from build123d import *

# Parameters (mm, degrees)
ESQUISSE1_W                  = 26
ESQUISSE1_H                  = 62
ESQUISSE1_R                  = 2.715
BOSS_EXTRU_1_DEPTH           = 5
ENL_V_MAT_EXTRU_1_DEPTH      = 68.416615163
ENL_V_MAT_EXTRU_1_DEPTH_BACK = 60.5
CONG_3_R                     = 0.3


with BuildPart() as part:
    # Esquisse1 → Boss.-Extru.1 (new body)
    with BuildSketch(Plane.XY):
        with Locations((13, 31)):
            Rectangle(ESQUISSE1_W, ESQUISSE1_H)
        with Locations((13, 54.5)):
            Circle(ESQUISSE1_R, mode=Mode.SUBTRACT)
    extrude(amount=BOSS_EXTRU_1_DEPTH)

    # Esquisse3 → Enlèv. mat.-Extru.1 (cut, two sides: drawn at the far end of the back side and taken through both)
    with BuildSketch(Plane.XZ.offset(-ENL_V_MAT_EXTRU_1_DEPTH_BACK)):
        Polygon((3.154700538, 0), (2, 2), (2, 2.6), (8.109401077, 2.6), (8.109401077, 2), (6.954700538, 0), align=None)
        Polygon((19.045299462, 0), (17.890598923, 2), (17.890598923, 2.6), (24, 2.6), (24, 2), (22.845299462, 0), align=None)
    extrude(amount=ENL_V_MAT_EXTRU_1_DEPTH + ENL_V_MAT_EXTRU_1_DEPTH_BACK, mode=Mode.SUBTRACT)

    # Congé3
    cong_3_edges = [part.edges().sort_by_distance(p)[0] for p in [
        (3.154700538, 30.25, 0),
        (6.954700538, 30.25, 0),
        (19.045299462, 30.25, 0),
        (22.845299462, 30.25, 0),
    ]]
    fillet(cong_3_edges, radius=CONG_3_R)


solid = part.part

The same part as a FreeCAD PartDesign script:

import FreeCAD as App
import Part
import Sketcher

V = App.Vector
Q = App.Units.Quantity


def edges_at(feature, points):
    """Names of the edges that pass closest to the given points."""
    edges = feature.Shape.Edges
    near = lambda p: min(range(len(edges)), key=lambda i: edges[i].distToShape(Part.Vertex(*p))[0])
    return sorted({f"Edge{near(p) + 1}" for p in points})


def add_polygon(sketch, points):
    """Adds a closed chain of lines whose ends are joined by coincident constraints."""
    first, n = sketch.GeometryCount, len(points)
    for a, b in zip(points, points[1:] + points[:1]):
        sketch.addGeometry(Part.LineSegment(App.Vector(*a, 0), App.Vector(*b, 0)), False)
    for i in range(n):
        sketch.addConstraint(Sketcher.Constraint("Coincident", first + i, 2, first + (i + 1) % n, 1))

doc = App.newDocument("Part")
params = doc.addObject("Spreadsheet::Sheet", "Params")
for row, (alias, value) in enumerate([
    ("sketch1_diameter", "5.43 mm"),
    ("sketch1_width", "26 mm"),
    ("sketch1_height", "62 mm"),
    ("pad1_length", "5 mm"),
    ("sketch2_width", "3.8 mm"),
    ("sketch2_height", "0.6 mm"),
    ("pocket1_length", "68.416615 mm"),
    ("pocket1_length2", "60.5 mm"),
    ("fillet_radius", "0.3 mm"),
], start=1):
    params.set(f"A{row}", alias)
    params.set(f"B{row}", "=" + value)
    params.setAlias(f"B{row}", alias)

body = doc.addObject("PartDesign::Body", "Body")

sketch1 = doc.addObject("Sketcher::SketchObject", "Sketch")
body.addObject(sketch1)
sketch1.AttachmentSupport = (doc.XY_Plane, [""])
sketch1.MapMode = "FlatFace"
add_polygon(sketch1, [(0, 62), (0, 0), (26, 0), (26, 62)])
sketch1.addGeometry(Part.Circle(V(13, 54.5, 0), V(0, 0, 1), 2.7), False)
sketch1.addConstraint(Sketcher.Constraint("Vertical", 0))
sketch1.addConstraint(Sketcher.Constraint("Horizontal", 1))
sketch1.addConstraint(Sketcher.Constraint("Vertical", 2))
sketch1.addConstraint(Sketcher.Constraint("Horizontal", 3))
sketch1.addConstraint(Sketcher.Constraint("Coincident", 0, 2, -1, 1))
sketch1.addConstraint(Sketcher.Constraint("Diameter", 4, Q("5.43 mm")))
sketch1.addConstraint(Sketcher.Constraint("DistanceX", 1, 1, 1, 2, Q("26 mm")))
sketch1.addConstraint(Sketcher.Constraint("DistanceY", 0, 2, 0, 1, Q("62 mm")))
sketch1.addConstraint(Sketcher.Constraint("DistanceX", -1, 1, 4, 3, Q("13 mm")))
sketch1.addConstraint(Sketcher.Constraint("DistanceY", -1, 1, 4, 3, Q("54.5 mm")))
sketch1.setExpression("Constraints[9]", "Params.sketch1_diameter")
sketch1.setExpression("Constraints[10]", "Params.sketch1_width")
sketch1.setExpression("Constraints[11]", "Params.sketch1_height")
pad1 = doc.addObject("PartDesign::Pad", "Pad")
body.addObject(pad1)
pad1.Profile = sketch1
pad1.setExpression("Length", "Params.pad1_length")

sketch2 = doc.addObject("Sketcher::SketchObject", "Sketch001")
body.addObject(sketch2)
sketch2.AttachmentSupport = (doc.XZ_Plane, [""])
sketch2.MapMode = "FlatFace"
add_polygon(sketch2, [(2, 2), (3.2, 0), (7, 0), (8.1, 2), (8.1, 2.6), (2, 2.6)])
add_polygon(sketch2, [(17.9, 2), (19, 0), (22.8, 0), (24, 2), (24, 2.6), (17.9, 2.6)])
sketch2.addConstraint(Sketcher.Constraint("Horizontal", 1))
sketch2.addConstraint(Sketcher.Constraint("Vertical", 3))
sketch2.addConstraint(Sketcher.Constraint("Horizontal", 4))
sketch2.addConstraint(Sketcher.Constraint("Vertical", 5))
sketch2.addConstraint(Sketcher.Constraint("Horizontal", 7))
sketch2.addConstraint(Sketcher.Constraint("Vertical", 9))
sketch2.addConstraint(Sketcher.Constraint("Horizontal", 10))
sketch2.addConstraint(Sketcher.Constraint("Vertical", 11))
sketch2.addConstraint(Sketcher.Constraint("PointOnObject", 0, 2, -1))
sketch2.addConstraint(Sketcher.Constraint("PointOnObject", 6, 2, -1))
sketch2.addConstraint(Sketcher.Constraint("Parallel", 0, 6))
sketch2.addConstraint(Sketcher.Constraint("Parallel", 2, 8))
sketch2.addConstraint(Sketcher.Constraint("Horizontal", 2, 2, 5, 2))
sketch2.addConstraint(Sketcher.Constraint("Horizontal", 5, 2, 8, 2))
sketch2.addConstraint(Sketcher.Constraint("Horizontal", 4, 2, 9, 2))
sketch2.addConstraint(Sketcher.Constraint("Horizontal", 8, 2, 11, 2))
sketch2.addConstraint(Sketcher.Constraint("Equal", 1, 7))
sketch2.addConstraint(Sketcher.Constraint("Equal", 0, 2))
sketch2.addConstraint(Sketcher.Constraint("Angle", 0, Q("-60 deg")))
sketch2.addConstraint(Sketcher.Constraint("DistanceX", 1, 1, 1, 2, Q("3.8 mm")))
sketch2.addConstraint(Sketcher.Constraint("DistanceY", 3, 1, 3, 2, Q("0.6 mm")))
sketch2.addConstraint(Sketcher.Constraint("DistanceY", -1, 1, 2, 2, Q("2 mm")))
sketch2.addConstraint(Sketcher.Constraint("DistanceX", -1, 1, 4, 2, Q("2 mm")))
sketch2.addConstraint(Sketcher.Constraint("DistanceX", -1, 1, 8, 2, Q("24 mm")))
sketch2.setExpression("Constraints[31]", "Params.sketch2_width")
sketch2.setExpression("Constraints[32]", "Params.sketch2_height")
pocket1 = doc.addObject("PartDesign::Pocket", "Pocket")
body.addObject(pocket1)
pocket1.Profile = sketch2
pocket1.Type = "TwoLengths"
pocket1.setExpression("Length", "Params.pocket1_length")
pocket1.setExpression("Length2", "Params.pocket1_length2")
pocket1.Reversed = True
doc.recompute()

fillet = doc.addObject("PartDesign::Fillet", "Fillet")
body.addObject(fillet)
fillet.Base = (pocket1, edges_at(pocket1, [
    (3.155, 30.25, 0),
    (6.955, 30.25, 0),
    (19.045, 30.25, 0),
    (22.845, 30.25, 0),
]))
fillet.setExpression("Radius", "Params.fillet_radius")

doc.recompute()
